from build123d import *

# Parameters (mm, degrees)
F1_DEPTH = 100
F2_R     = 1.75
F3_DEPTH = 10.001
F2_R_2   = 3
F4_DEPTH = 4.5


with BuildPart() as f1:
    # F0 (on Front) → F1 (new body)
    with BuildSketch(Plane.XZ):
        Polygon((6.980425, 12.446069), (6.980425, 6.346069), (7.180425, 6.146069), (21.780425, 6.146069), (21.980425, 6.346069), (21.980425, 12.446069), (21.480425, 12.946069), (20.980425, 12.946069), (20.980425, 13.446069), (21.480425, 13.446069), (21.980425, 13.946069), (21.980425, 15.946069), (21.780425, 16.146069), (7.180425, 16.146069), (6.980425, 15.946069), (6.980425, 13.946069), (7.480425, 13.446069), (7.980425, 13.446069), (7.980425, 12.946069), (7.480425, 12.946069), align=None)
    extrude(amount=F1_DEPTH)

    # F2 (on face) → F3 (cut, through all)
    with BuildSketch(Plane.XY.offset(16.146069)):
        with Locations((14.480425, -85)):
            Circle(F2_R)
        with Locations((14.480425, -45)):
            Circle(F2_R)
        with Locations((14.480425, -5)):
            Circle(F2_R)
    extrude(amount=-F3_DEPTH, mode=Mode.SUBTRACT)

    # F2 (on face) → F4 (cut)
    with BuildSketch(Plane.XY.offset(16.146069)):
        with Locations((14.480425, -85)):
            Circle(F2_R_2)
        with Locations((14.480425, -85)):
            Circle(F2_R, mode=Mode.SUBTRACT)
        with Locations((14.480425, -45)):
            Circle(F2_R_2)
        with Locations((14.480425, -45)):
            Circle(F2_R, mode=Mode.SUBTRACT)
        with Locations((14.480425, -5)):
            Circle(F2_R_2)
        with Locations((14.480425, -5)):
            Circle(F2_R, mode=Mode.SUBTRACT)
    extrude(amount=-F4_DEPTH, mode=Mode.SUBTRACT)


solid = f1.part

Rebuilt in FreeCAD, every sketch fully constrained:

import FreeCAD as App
import Part
import Sketcher

doc = App.newDocument("Part")
body = doc.addObject("PartDesign::Body", "Body")

# Sketch on XZ plane
sketch1 = body.newObject("Sketcher::SketchObject", "Sketch")
sketch1.AttachmentSupport = (doc.getObject("XZ_Plane"), [""])
sketch1.MapMode = "FlatFace"
sketch1.addGeometry(Part.LineSegment(App.Vector(6.98, 12.45, 0), App.Vector(6.98, 6.35, 0)), False)
sketch1.addGeometry(Part.LineSegment(App.Vector(6.98, 6.35, 0), App.Vector(7.18, 6.15, 0)), False)
sketch1.addGeometry(Part.LineSegment(App.Vector(7.18, 6.15, 0), App.Vector(21.78, 6.15, 0)), False)
sketch1.addGeometry(Part.LineSegment(App.Vector(21.78, 6.15, 0), App.Vector(21.98, 6.35, 0)), False)
sketch1.addGeometry(Part.LineSegment(App.Vector(21.98, 6.35, 0), App.Vector(21.98, 12.45, 0)), False)
sketch1.addGeometry(Part.LineSegment(App.Vector(21.98, 12.45, 0), App.Vector(21.48, 12.95, 0)), False)
sketch1.addGeometry(Part.LineSegment(App.Vector(21.48, 12.95, 0), App.Vector(20.98, 12.95, 0)), False)
sketch1.addGeometry(Part.LineSegment(App.Vector(20.98, 12.95, 0), App.Vector(20.98, 13.45, 0)), False)
sketch1.addGeometry(Part.LineSegment(App.Vector(20.98, 13.45, 0), App.Vector(21.48, 13.45, 0)), False)
sketch1.addGeometry(Part.LineSegment(App.Vector(21.48, 13.45, 0), App.Vector(21.98, 13.95, 0)), False)
sketch1.addGeometry(Part.LineSegment(App.Vector(21.98, 13.95, 0), App.Vector(21.98, 15.95, 0)), False)
sketch1.addGeometry(Part.LineSegment(App.Vector(21.98, 15.95, 0), App.Vector(21.78, 16.15, 0)), False)
sketch1.addGeometry(Part.LineSegment(App.Vector(21.78, 16.15, 0), App.Vector(7.18, 16.15, 0)), False)
sketch1.addGeometry(Part.LineSegment(App.Vector(7.18, 16.15, 0), App.Vector(6.98, 15.95, 0)), False)
sketch1.addGeometry(Part.LineSegment(App.Vector(6.98, 15.95, 0), App.Vector(6.98, 13.95, 0)), False)
sketch1.addGeometry(Part.LineSegment(App.Vector(6.98, 13.95, 0), App.Vector(7.48, 13.45, 0)), False)
sketch1.addGeometry(Part.LineSegment(App.Vector(7.48, 13.45, 0), App.Vector(7.98, 13.45, 0)), False)
sketch1.addGeometry(Part.LineSegment(App.Vector(7.98, 13.45, 0), App.Vector(7.98, 12.95, 0)), False)
sketch1.addGeometry(Part.LineSegment(App.Vector(7.98, 12.95, 0), App.Vector(7.48, 12.95, 0)), False)
sketch1.addGeometry(Part.LineSegment(App.Vector(7.48, 12.95, 0), App.Vector(6.98, 12.45, 0)), False)
sketch1.addConstraint(Sketcher.Constraint("Coincident", 0, 2, 1, 1))
sketch1.addConstraint(Sketcher.Constraint("Coincident", 1, 2, 2, 1))
sketch1.addConstraint(Sketcher.Constraint("Coincident", 2, 2, 3, 1))
sketch1.addConstraint(Sketcher.Constraint("Coincident", 3, 2, 4, 1))
sketch1.addConstraint(Sketcher.Constraint("Coincident", 4, 2, 5, 1))
sketch1.addConstraint(Sketcher.Constraint("Coincident", 5, 2, 6, 1))
sketch1.addConstraint(Sketcher.Constraint("Coincident", 6, 2, 7, 1))
sketch1.addConstraint(Sketcher.Constraint("Coincident", 7, 2, 8, 1))
sketch1.addConstraint(Sketcher.Constraint("Coincident", 8, 2, 9, 1))
sketch1.addConstraint(Sketcher.Constraint("Coincident", 9, 2, 10, 1))
sketch1.addConstraint(Sketcher.Constraint("Coincident", 10, 2, 11, 1))
sketch1.addConstraint(Sketcher.Constraint("Coincident", 11, 2, 12, 1))
sketch1.addConstraint(Sketcher.Constraint("Coincident", 12, 2, 13, 1))
sketch1.addConstraint(Sketcher.Constraint("Coincident", 13, 2, 14, 1))
sketch1.addConstraint(Sketcher.Constraint("Coincident", 14, 2, 15, 1))
sketch1.addConstraint(Sketcher.Constraint("Coincident", 15, 2, 16, 1))
sketch1.addConstraint(Sketcher.Constraint("Coincident", 16, 2, 17, 1))
sketch1.addConstraint(Sketcher.Constraint("Coincident", 17, 2, 18, 1))
sketch1.addConstraint(Sketcher.Constraint("Coincident", 18, 2, 19, 1))
sketch1.addConstraint(Sketcher.Constraint("Coincident", 19, 2, 0, 1))
sketch1.addConstraint(Sketcher.Constraint("Vertical", 0))
sketch1.addConstraint(Sketcher.Constraint("Horizontal", 2))
sketch1.addConstraint(Sketcher.Constraint("Vertical", 4))
sketch1.addConstraint(Sketcher.Constraint("Horizontal", 6))
sketch1.addConstraint(Sketcher.Constraint("Vertical", 7))
sketch1.addConstraint(Sketcher.Constraint("Horizontal", 8))
sketch1.addConstraint(Sketcher.Constraint("Vertical", 10))
sketch1.addConstraint(Sketcher.Constraint("Horizontal", 12))
sketch1.addConstraint(Sketcher.Constraint("Vertical", 14))
sketch1.addConstraint(Sketcher.Constraint("Horizontal", 16))
sketch1.addConstraint(Sketcher.Constraint("Vertical", 17))
sketch1.addConstraint(Sketcher.Constraint("Horizontal", 18))
sketch1.addConstraint(Sketcher.Constraint("Perpendicular", 1, 3))
sketch1.addConstraint(Sketcher.Constraint("Perpendicular", 3, 5))
sketch1.addConstraint(Sketcher.Constraint("Perpendicular", 5, 9))
sketch1.addConstraint(Sketcher.Constraint("Perpendicular", 9, 11))
sketch1.addConstraint(Sketcher.Constraint("Perpendicular", 11, 13))
sketch1.addConstraint(Sketcher.Constraint("Perpendicular", 13, 15))
sketch1.addConstraint(Sketcher.Constraint("Perpendicular", 15, 19))
sketch1.addConstraint(Sketcher.Constraint("Horizontal", 0, 2, 3, 2))
sketch1.addConstraint(Sketcher.Constraint("Horizontal", 10, 2, 13, 2))
sketch1.addConstraint(Sketcher.Constraint("Horizontal", 9, 2, 14, 2))
sketch1.addConstraint(Sketcher.Constraint("Horizontal", 8, 2, 15, 2))
sketch1.addConstraint(Sketcher.Constraint("Horizontal", 6, 2, 17, 2))
sketch1.addConstraint(Sketcher.Constraint("Horizontal", 4, 2, 19, 2))
sketch1.addConstraint(Sketcher.Constraint("Vertical", 5, 2, 8, 2))
sketch1.addConstraint(Sketcher.Constraint("Vertical", 4, 2, 9, 2))
sketch1.addConstraint(Sketcher.Constraint("Vertical", 2, 2, 11, 2))
sketch1.addConstraint(Sketcher.Constraint("Vertical", 1, 2, 12, 2))
sketch1.addConstraint(Sketcher.Constraint("Vertical", 0, 2, 13, 2))
sketch1.addConstraint(Sketcher.Constraint("Equal", 8, 16))
sketch1.addConstraint(Sketcher.Constraint("Equal", 18, 7))
sketch1.addConstraint(Sketcher.Constraint("DistanceY", 10, 1, 10, 2, 2.0))
sketch1.addConstraint(Sketcher.Constraint("DistanceX", 2, 1, 2, 2, 14.6))
sketch1.addConstraint(Sketcher.Constraint("DistanceX", 6, 2, 6, 1, 0.5))
sketch1.addConstraint(Sketcher.Constraint("DistanceY", 0, 2, 0, 1, 6.1))
sketch1.addConstraint(Sketcher.Constraint("DistanceX", 0, 2, 3, 2, 15.0))
sketch1.addConstraint(Sketcher.Constraint("DistanceX", 6, 2, 4, 2, 1.0))
sketch1.addConstraint(Sketcher.Constraint("DistanceY", -1, 1, 0, 2, 6.346069))
sketch1.addConstraint(Sketcher.Constraint("DistanceX", -1, 1, 0, 2, 6.980425))
pad1 = body.newObject("PartDesign::Pad", "Pad")
pad1.Profile = sketch1
pad1.Length = 100

# Sketch on XY plane
sketch2 = body.newObject("Sketcher::SketchObject", "Sketch001")
sketch2.AttachmentSupport = (doc.getObject("XY_Plane"), [""])
sketch2.MapMode = "FlatFace"
sketch2.AttachmentOffset = App.Placement(App.Vector(0, 0, 16.146069), App.Rotation())
sketch2.addGeometry(Part.Circle(App.Vector(14.5, -85, 0), App.Vector(0, 0, 1), 1.8), False)
sketch2.addGeometry(Part.Circle(App.Vector(14.5, -45, 0), App.Vector(0, 0, 1), 1.8), False)
sketch2.addGeometry(Part.Circle(App.Vector(14.5, -5, 0), App.Vector(0, 0, 1), 1.8), False)
sketch2.addConstraint(Sketcher.Constraint("Equal", 0, 1))
sketch2.addConstraint(Sketcher.Constraint("Equal", 1, 2))
sketch2.addConstraint(Sketcher.Constraint("Vertical", 0, 3, 1, 3))
sketch2.addConstraint(Sketcher.Constraint("Vertical", 1, 3, 2, 3))
sketch2.addConstraint(Sketcher.Constraint("Diameter", 0, 3.5))
sketch2.addConstraint(Sketcher.Constraint("DistanceY", 0, 3, -1, 1, 85.0))
sketch2.addConstraint(Sketcher.Constraint("DistanceY", 1, 3, -1, 1, 45.0))
sketch2.addConstraint(Sketcher.Constraint("DistanceY", 2, 3, -1, 1, 5.0))
sketch2.addConstraint(Sketcher.Constraint("DistanceX", -1, 1, 0, 3, 14.480425))
pocket1 = body.newObject("PartDesign::Pocket", "Pocket")
pocket1.Profile = sketch2
pocket1.Type = "ThroughAll"

# Sketch on XY plane
sketch3 = body.newObject("Sketcher::SketchObject", "Sketch002")
sketch3.AttachmentSupport = (doc.getObject("XY_Plane"), [""])
sketch3.MapMode = "FlatFace"
sketch3.AttachmentOffset = App.Placement(App.Vector(0, 0, 16.146069), App.Rotation())
sketch3.addGeometry(Part.Circle(App.Vector(14.5, -85, 0), App.Vector(0, 0, 1), 3), False)
sketch3.addGeometry(Part.Circle(App.Vector(14.5, -85, 0), App.Vector(0, 0, 1), 1.8), False)
sketch3.addGeometry(Part.Circle(App.Vector(14.5, -45, 0), App.Vector(0, 0, 1), 3), False)
sketch3.addGeometry(Part.Circle(App.Vector(14.5, -45, 0), App.Vector(0, 0, 1), 1.8), False)
sketch3.addGeometry(Part.Circle(App.Vector(14.5, -5, 0), App.Vector(0, 0, 1), 3), False)
sketch3.addGeometry(Part.Circle(App.Vector(14.5, -5, 0), App.Vector(0, 0, 1), 1.8), False)
sketch3.addConstraint(Sketcher.Constraint("Coincident", 1, 3, 0, 3))
sketch3.addConstraint(Sketcher.Constraint("Coincident", 3, 3, 2, 3))
sketch3.addConstraint(Sketcher.Constraint("Coincident", 5, 3, 4, 3))
sketch3.addConstraint(Sketcher.Constraint("Equal", 0, 2))
sketch3.addConstraint(Sketcher.Constraint("Equal", 1, 3))
sketch3.addConstraint(Sketcher.Constraint("Equal", 2, 4))
sketch3.addConstraint(Sketcher.Constraint("Equal", 3, 5))
sketch3.addConstraint(Sketcher.Constraint("Vertical", 1, 3, 2, 3))
sketch3.addConstraint(Sketcher.Constraint("Vertical", 3, 3, 4, 3))
sketch3.addConstraint(Sketcher.Constraint("Diameter", 0, 6.0))
sketch3.addConstraint(Sketcher.Constraint("Diameter", 1, 3.5))
sketch3.addConstraint(Sketcher.Constraint("DistanceY", 0, 3, -1, 1, 85.0))
sketch3.addConstraint(Sketcher.Constraint("DistanceY", 2, 3, -1, 1, 45.0))
sketch3.addConstraint(Sketcher.Constraint("DistanceY", 4, 3, -1, 1, 5.0))
sketch3.addConstraint(Sketcher.Constraint("DistanceX", -1, 1, 0, 3, 14.480425))
pocket2 = body.newObject("PartDesign::Pocket", "Pocket001")
pocket2.Profile = sketch3
pocket2.Length = 4.5

doc.recompute()
